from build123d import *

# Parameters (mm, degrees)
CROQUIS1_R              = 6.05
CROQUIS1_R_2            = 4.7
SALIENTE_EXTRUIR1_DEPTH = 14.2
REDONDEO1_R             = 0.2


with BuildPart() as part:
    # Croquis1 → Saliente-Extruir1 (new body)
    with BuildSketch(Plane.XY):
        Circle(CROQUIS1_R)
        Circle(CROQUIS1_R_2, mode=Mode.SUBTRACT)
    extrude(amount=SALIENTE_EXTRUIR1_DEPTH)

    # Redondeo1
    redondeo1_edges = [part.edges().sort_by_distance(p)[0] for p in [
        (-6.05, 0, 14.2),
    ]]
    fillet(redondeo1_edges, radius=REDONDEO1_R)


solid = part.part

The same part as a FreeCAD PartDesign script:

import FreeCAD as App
import Part
import Sketcher

V = App.Vector


def edges_at(feature, points):
    """Names of the edges that pass closest to the given points."""
    edges = feature.Shape.Edges
    near = lambda p: min(range(len(edges)), key=lambda i: edges[i].distToShape(Part.Vertex(*p))[0])
    return sorted({f"Edge{near(p) + 1}" for p in points})

doc = App.newDocument("Part")
body = doc.addObject("PartDesign::Body", "Body")

sketch1 = body.newObject("Sketcher::SketchObject", "Sketch")
sketch1.AttachmentSupport = (doc.getObject("XY_Plane"), [""])
sketch1.MapMode = "FlatFace"
sketch1.addGeometry([
    Part.Circle(V(0, 0, 0), V(0, 0, 1), 6),
    Part.Circle(V(0, 0, 0), V(0, 0, 1), 4.7),
], False)
sketch1.addConstraint([
    Sketcher.Constraint("Coincident", 0, 3, -1, 1),
    Sketcher.Constraint("Coincident", 1, 3, -1, 1),
    Sketcher.Constraint("Diameter", 0, 12.1),
    Sketcher.Constraint("Diameter", 1, 9.4),
])
pad1 = body.newObject("PartDesign::Pad", "Pad")
pad1.Profile = sketch1
pad1.Length = 14.2
doc.recompute()

fillet = body.newObject("PartDesign::Fillet", "Fillet")
fillet.Base = (pad1, edges_at(pad1, [(-6.05, 0, 14.2)]))
fillet.Radius = 0.2

doc.recompute()
